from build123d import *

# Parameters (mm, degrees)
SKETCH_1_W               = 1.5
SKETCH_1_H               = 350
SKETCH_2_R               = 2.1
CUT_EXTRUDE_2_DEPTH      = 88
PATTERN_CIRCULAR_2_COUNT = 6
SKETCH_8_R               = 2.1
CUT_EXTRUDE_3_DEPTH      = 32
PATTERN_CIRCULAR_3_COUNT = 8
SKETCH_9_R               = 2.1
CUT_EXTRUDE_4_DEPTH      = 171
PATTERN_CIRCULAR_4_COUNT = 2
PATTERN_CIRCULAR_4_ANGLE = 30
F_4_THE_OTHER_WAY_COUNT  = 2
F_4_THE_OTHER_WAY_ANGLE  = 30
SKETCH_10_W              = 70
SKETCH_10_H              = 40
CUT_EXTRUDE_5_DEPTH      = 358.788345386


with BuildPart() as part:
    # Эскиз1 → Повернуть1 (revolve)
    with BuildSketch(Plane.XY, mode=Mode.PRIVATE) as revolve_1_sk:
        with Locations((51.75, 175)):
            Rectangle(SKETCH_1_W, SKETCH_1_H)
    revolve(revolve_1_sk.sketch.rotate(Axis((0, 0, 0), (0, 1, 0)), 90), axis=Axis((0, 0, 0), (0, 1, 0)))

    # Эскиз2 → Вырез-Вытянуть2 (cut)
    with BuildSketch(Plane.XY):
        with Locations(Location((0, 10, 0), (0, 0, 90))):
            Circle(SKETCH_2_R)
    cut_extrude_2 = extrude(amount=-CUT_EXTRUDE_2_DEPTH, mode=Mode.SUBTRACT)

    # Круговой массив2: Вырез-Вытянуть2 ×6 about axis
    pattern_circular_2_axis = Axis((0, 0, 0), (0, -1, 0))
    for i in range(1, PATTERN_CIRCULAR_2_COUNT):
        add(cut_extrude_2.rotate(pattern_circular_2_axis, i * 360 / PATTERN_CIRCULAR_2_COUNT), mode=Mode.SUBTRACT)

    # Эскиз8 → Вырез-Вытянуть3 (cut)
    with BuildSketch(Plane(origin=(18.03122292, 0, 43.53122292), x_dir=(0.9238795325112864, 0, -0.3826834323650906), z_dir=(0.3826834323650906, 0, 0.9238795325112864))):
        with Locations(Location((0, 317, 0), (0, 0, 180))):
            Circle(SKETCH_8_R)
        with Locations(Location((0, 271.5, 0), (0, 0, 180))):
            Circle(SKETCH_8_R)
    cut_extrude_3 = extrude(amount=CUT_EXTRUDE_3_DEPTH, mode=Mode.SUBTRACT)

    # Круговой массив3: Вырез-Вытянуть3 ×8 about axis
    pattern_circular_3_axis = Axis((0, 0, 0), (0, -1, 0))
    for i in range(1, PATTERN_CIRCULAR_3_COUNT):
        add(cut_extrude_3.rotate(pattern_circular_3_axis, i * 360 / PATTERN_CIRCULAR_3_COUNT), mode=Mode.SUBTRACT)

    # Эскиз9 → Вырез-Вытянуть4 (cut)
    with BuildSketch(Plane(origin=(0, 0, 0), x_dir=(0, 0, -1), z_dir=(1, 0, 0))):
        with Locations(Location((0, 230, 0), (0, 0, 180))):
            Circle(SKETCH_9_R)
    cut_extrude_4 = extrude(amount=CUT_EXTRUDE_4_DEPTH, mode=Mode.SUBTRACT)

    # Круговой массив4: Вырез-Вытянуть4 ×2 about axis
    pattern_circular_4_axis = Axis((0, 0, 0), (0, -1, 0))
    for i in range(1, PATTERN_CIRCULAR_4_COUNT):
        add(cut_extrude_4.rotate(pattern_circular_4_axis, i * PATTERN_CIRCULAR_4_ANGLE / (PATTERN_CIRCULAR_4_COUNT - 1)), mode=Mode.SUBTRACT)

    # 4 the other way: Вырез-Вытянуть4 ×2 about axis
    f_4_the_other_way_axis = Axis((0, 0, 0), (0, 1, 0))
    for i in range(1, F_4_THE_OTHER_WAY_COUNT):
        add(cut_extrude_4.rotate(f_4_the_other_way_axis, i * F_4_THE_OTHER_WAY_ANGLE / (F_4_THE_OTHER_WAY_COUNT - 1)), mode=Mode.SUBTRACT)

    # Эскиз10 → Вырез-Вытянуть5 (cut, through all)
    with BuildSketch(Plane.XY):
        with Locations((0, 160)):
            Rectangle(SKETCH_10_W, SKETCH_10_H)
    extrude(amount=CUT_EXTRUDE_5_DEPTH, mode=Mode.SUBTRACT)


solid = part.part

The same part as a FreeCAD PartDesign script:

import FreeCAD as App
import Part
import Sketcher
from FreeCAD import Vector
Q = App.Units.Quantity

doc = App.newDocument("Part")
params = doc.addObject("Spreadsheet::Sheet", "Params")
for row, (alias, value) in enumerate([
    ("sketch1_height", "350 mm"),
    ("sketch1_width", "1.5 mm"),
    ("revolution_angle", "360 deg"),
    ("sketch2_diameter", "4.2 mm"),
    ("pocket1_length", "88 mm"),
    ("sketch3_diameter", "4.2 mm"),
    ("pocket2_length", "32 mm"),
    ("sketch4_diameter", "4.2 mm"),
    ("pocket3_length", "171 mm"),
    ("sketch5_width", "70 mm"),
    ("sketch5_height", "40 mm"),
], start=1):
    params.set(f"A{row}", alias)
    params.set(f"B{row}", "=" + value)
    params.setAlias(f"B{row}", alias)

body = doc.addObject("PartDesign::Body", "Body")

sketch1 = body.newObject("Sketcher::SketchObject", "Sketch")
sketch1.AttachmentSupport = (doc.getObject("XY_Plane"), [""])
sketch1.MapMode = "FlatFace"
sketch1.addGeometry(Part.LineSegment(Vector(51, 350, 0), Vector(51, 0, 0)), False)
sketch1.addGeometry(Part.LineSegment(Vector(51, 0, 0), Vector(52.5, 0, 0)), False)
sketch1.addGeometry(Part.LineSegment(Vector(52.5, 0, 0), Vector(52.5, 350, 0)), False)
sketch1.addGeometry(Part.LineSegment(Vector(52.5, 350, 0), Vector(51, 350, 0)), False)
sketch1.addConstraint(Sketcher.Constraint("Coincident", 0, 2, 1, 1))
sketch1.addConstraint(Sketcher.Constraint("Coincident", 1, 2, 2, 1))
sketch1.addConstraint(Sketcher.Constraint("Coincident", 2, 2, 3, 1))
sketch1.addConstraint(Sketcher.Constraint("Coincident", 3, 2, 0, 1))
sketch1.addConstraint(Sketcher.Constraint("Vertical", 0))
sketch1.addConstraint(Sketcher.Constraint("Horizontal", 1))
sketch1.addConstraint(Sketcher.Constraint("Vertical", 2))
sketch1.addConstraint(Sketcher.Constraint("Horizontal", 3))
sketch1.addConstraint(Sketcher.Constraint("PointOnObject", 0, 2, -1))
sketch1.addConstraint(Sketcher.Constraint("DistanceY", 0, 2, 0, 1, Q("350 mm")))
sketch1.addConstraint(Sketcher.Constraint("DistanceX", 1, 1, 1, 2, Q("1.5 mm")))
sketch1.addConstraint(Sketcher.Constraint("DistanceX", -1, 1, 0, 2, Q("51 mm")))
sketch1.setExpression("Constraints[9]", "Params.sketch1_height")
sketch1.setExpression("Constraints[10]", "Params.sketch1_width")
revolution = body.newObject("PartDesign::Revolution", "Revolution")
revolution.Profile = sketch1
revolution.ReferenceAxis = (sketch1, ["V_Axis"])
revolution.setExpression("Angle", "Params.revolution_angle")

sketch2 = body.newObject("Sketcher::SketchObject", "Sketch001")
sketch2.AttachmentSupport = (doc.getObject("XY_Plane"), [""])
sketch2.MapMode = "FlatFace"
sketch2.addGeometry(Part.Circle(Vector(0, 10, 0), Vector(0, 0, 1), 2.1), False)
sketch2.addConstraint(Sketcher.Constraint("PointOnObject", 0, 3, -2))
sketch2.addConstraint(Sketcher.Constraint("Diameter", 0, Q("4.2 mm")))
sketch2.addConstraint(Sketcher.Constraint("DistanceY", -1, 1, 0, 3, Q("10 mm")))
sketch2.setExpression("Constraints[1]", "Params.sketch2_diameter")
pocket1 = body.newObject("PartDesign::Pocket", "Pocket")
pocket1.Profile = sketch2
pocket1.setExpression("Length", "Params.pocket1_length")
doc.recompute()

polarpattern = body.newObject("PartDesign::PolarPattern", "PolarPattern")
polarpattern.Originals = [pocket1]
polarpattern.Axis = (doc.getObject("Y_Axis"), [""])
polarpattern.Angle = 360
polarpattern.Occurrences = 6
body.Tip = polarpattern

sketch3 = body.newObject("Sketcher::SketchObject", "Sketch002")
sketch3.Placement = App.Placement(Vector(18.031223, 0, 43.531223), App.Rotation(Vector(0.923879533, 0, -0.382683432), Vector(0, 1.000000001, 0), Vector(0.382683432, 0, 0.923879533), "ZXY"))
sketch3.addGeometry(Part.Circle(Vector(0, 317, 0), Vector(0, 0, 1), 2.1), False)
sketch3.addGeometry(Part.Circle(Vector(0, 271.5, 0), Vector(0, 0, 1), 2.1), False)
sketch3.addConstraint(Sketcher.Constraint("Equal", 0, 1))
sketch3.addConstraint(Sketcher.Constraint("PointOnObject", 0, 3, -2))
sketch3.addConstraint(Sketcher.Constraint("PointOnObject", 1, 3, -2))
sketch3.addConstraint(Sketcher.Constraint("Diameter", 0, Q("4.2 mm")))
sketch3.addConstraint(Sketcher.Constraint("DistanceY", -1, 1, 0, 3, Q("317 mm")))
sketch3.addConstraint(Sketcher.Constraint("DistanceY", -1, 1, 1, 3, Q("271.5 mm")))
sketch3.setExpression("Constraints[3]", "Params.sketch3_diameter")
pocket2 = body.newObject("PartDesign::Pocket", "Pocket001")
pocket2.Profile = sketch3
pocket2.setExpression("Length", "Params.pocket2_length")
pocket2.Reversed = True
doc.recompute()

polarpattern2 = body.newObject("PartDesign::PolarPattern", "PolarPattern001")
polarpattern2.Originals = [pocket2]
polarpattern2.Axis = (doc.getObject("Y_Axis"), [""])
polarpattern2.Angle = 360
polarpattern2.Occurrences = 8
body.Tip = polarpattern2

sketch4 = body.newObject("Sketcher::SketchObject", "Sketch003")
sketch4.AttachmentSupport = (doc.getObject("YZ_Plane"), [""])
sketch4.MapMode = "FlatFace"
sketch4.addGeometry(Part.Circle(Vector(230, 0, 0), Vector(0, 0, 1), 2.1), False)
sketch4.addConstraint(Sketcher.Constraint("PointOnObject", 0, 3, -1))
sketch4.addConstraint(Sketcher.Constraint("Diameter", 0, Q("4.2 mm")))
sketch4.addConstraint(Sketcher.Constraint("DistanceX", -1, 1, 0, 3, Q("230 mm")))
sketch4.setExpression("Constraints[1]", "Params.sketch4_diameter")
pocket3 = body.newObject("PartDesign::Pocket", "Pocket002")
pocket3.Profile = sketch4
pocket3.setExpression("Length", "Params.pocket3_length")
pocket3.Reversed = True
doc.recompute()

polarpattern3 = body.newObject("PartDesign::PolarPattern", "PolarPattern002")
polarpattern3.Originals = [pocket3]
polarpattern3.Axis = (doc.getObject("Y_Axis"), [""])
polarpattern3.Angle = 30
polarpattern3.Occurrences = 2
polarpattern3.Reversed = True
body.Tip = polarpattern3
doc.recompute()

polarpattern4 = body.newObject("PartDesign::PolarPattern", "PolarPattern003")
polarpattern4.Originals = [pocket3]
polarpattern4.Axis = (doc.getObject("Y_Axis"), [""])
polarpattern4.Angle = 30
polarpattern4.Occurrences = 2
body.Tip = polarpattern4

sketch5 = body.newObject("Sketcher::SketchObject", "Sketch004")
sketch5.AttachmentSupport = (doc.getObject("XY_Plane"), [""])
sketch5.MapMode = "FlatFace"
sketch5.addGeometry(Part.LineSegment(Vector(-35, 180, 0), Vector(-35, 140, 0)), False)
sketch5.addGeometry(Part.LineSegment(Vector(-35, 140, 0), Vector(35, 140, 0)), False)
sketch5.addGeometry(Part.LineSegment(Vector(35, 140, 0), Vector(35, 180, 0)), False)
sketch5.addGeometry(Part.LineSegment(Vector(35, 180, 0), Vector(-35, 180, 0)), False)
sketch5.addConstraint(Sketcher.Constraint("Coincident", 0, 2, 1, 1))
sketch5.addConstraint(Sketcher.Constraint("Coincident", 1, 2, 2, 1))
sketch5.addConstraint(Sketcher.Constraint("Coincident", 2, 2, 3, 1))
sketch5.addConstraint(Sketcher.Constraint("Coincident", 3, 2, 0, 1))
sketch5.addConstraint(Sketcher.Constraint("Vertical", 0))
sketch5.addConstraint(Sketcher.Constraint("Horizontal", 1))
sketch5.addConstraint(Sketcher.Constraint("Vertical", 2))
sketch5.addConstraint(Sketcher.Constraint("Horizontal", 3))
sketch5.addConstraint(Sketcher.Constraint("DistanceX", 1, 1, 1, 2, Q("70 mm")))
sketch5.addConstraint(Sketcher.Constraint("DistanceY", 0, 2, 0, 1, Q("40 mm")))
sketch5.addConstraint(Sketcher.Constraint("DistanceX", 0, 2, -1, 1, Q("35 mm")))
sketch5.addConstraint(Sketcher.Constraint("DistanceY", -1, 1, 0, 2, Q("140 mm")))
sketch5.setExpression("Constraints[8]", "Params.sketch5_width")
sketch5.setExpression("Constraints[9]", "Params.sketch5_height")
pocket4 = body.newObject("PartDesign::Pocket", "Pocket003")
pocket4.Profile = sketch5
pocket4.Type = "ThroughAll"
pocket4.Reversed = True

doc.recompute()
